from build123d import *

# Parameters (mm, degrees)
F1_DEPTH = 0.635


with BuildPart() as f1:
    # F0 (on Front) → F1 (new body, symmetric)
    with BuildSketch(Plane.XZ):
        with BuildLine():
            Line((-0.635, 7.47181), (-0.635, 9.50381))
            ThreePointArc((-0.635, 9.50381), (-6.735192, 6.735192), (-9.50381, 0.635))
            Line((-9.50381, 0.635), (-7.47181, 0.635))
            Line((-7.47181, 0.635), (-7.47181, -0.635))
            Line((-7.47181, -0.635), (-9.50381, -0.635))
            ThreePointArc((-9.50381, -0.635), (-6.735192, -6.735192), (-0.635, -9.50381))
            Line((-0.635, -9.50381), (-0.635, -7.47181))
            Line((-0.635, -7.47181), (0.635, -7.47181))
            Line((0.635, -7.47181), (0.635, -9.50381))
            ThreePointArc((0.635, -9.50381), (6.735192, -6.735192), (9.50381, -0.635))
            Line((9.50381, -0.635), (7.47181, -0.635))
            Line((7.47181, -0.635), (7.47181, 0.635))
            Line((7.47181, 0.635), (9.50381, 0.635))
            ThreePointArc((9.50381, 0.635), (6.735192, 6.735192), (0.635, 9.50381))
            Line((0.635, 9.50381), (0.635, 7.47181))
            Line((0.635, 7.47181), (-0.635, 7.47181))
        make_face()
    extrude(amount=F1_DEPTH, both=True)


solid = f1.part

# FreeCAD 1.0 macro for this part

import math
import FreeCAD as App
import Part
import Sketcher
from FreeCAD import Vector
Q = App.Units.Quantity

doc = App.newDocument("Part")
params = doc.addObject("Spreadsheet::Sheet", "Params")
for row, (alias, value) in enumerate([
    ("sketch1_radius", "0.3750001 in"),
    ("sketch1_width", "0.08 in"),
    ("sketch1_width2", "0.05 in"),
    ("pad1_length", "0.05 in"),
], start=1):
    params.set(f"A{row}", alias)
    params.set(f"B{row}", "=" + value)
    params.setAlias(f"B{row}", alias)

body = doc.addObject("PartDesign::Body", "Body")

sketch1 = doc.addObject("Sketcher::SketchObject", "Sketch")
body.addObject(sketch1)
sketch1.AttachmentSupport = (doc.XZ_Plane, [""])
sketch1.MapMode = "FlatFace"
sketch1.addGeometry(Part.LineSegment(Vector(-0.6, 7.5, 0), Vector(-0.6, 9.5, 0)), False)
sketch1.addGeometry(Part.ArcOfCircle(Part.Circle(Vector(0, 0, 0), Vector(0, 0, 1), 9.5), math.radians(94), math.radians(176)), False)
sketch1.addGeometry(Part.LineSegment(Vector(-9.5, 0.6, 0), Vector(-7.5, 0.6, 0)), False)
sketch1.addGeometry(Part.LineSegment(Vector(-7.5, 0.6, 0), Vector(-7.5, -0.6, 0)), False)
sketch1.addGeometry(Part.LineSegment(Vector(-7.5, -0.6, 0), Vector(-9.5, -0.6, 0)), False)
sketch1.addGeometry(Part.ArcOfCircle(Part.Circle(Vector(0, 0, 0), Vector(0, 0, 1), 9.5), math.radians(-176), math.radians(-94)), False)
sketch1.addGeometry(Part.LineSegment(Vector(-0.6, -9.5, 0), Vector(-0.6, -7.5, 0)), False)
sketch1.addGeometry(Part.LineSegment(Vector(-0.6, -7.5, 0), Vector(0.6, -7.5, 0)), False)
sketch1.addGeometry(Part.LineSegment(Vector(0.6, -7.5, 0), Vector(0.6, -9.5, 0)), False)
sketch1.addGeometry(Part.ArcOfCircle(Part.Circle(Vector(0, 0, 0), Vector(0, 0, 1), 9.5), math.radians(-86), math.radians(-4)), False)
sketch1.addGeometry(Part.LineSegment(Vector(9.5, -0.6, 0), Vector(7.5, -0.6, 0)), False)
sketch1.addGeometry(Part.LineSegment(Vector(7.5, -0.6, 0), Vector(7.5, 0.6, 0)), False)
sketch1.addGeometry(Part.LineSegment(Vector(7.5, 0.6, 0), Vector(9.5, 0.6, 0)), False)
sketch1.addGeometry(Part.ArcOfCircle(Part.Circle(Vector(0, 0, 0), Vector(0, 0, 1), 9.5), math.radians(4), math.radians(86)), False)
sketch1.addGeometry(Part.LineSegment(Vector(0.6, 9.5, 0), Vector(0.6, 7.5, 0)), False)
sketch1.addGeometry(Part.LineSegment(Vector(0.6, 7.5, 0), Vector(-0.6, 7.5, 0)), False)
sketch1.addConstraint(Sketcher.Constraint("Coincident", 0, 2, 1, 1))
sketch1.addConstraint(Sketcher.Constraint("Coincident", 1, 2, 2, 1))
sketch1.addConstraint(Sketcher.Constraint("Coincident", 2, 2, 3, 1))
sketch1.addConstraint(Sketcher.Constraint("Coincident", 3, 2, 4, 1))
sketch1.addConstraint(Sketcher.Constraint("Coincident", 4, 2, 5, 1))
sketch1.addConstraint(Sketcher.Constraint("Coincident", 5, 2, 6, 1))
sketch1.addConstraint(Sketcher.Constraint("Coincident", 6, 2, 7, 1))
sketch1.addConstraint(Sketcher.Constraint("Coincident", 7, 2, 8, 1))
sketch1.addConstraint(Sketcher.Constraint("Coincident", 8, 2, 9, 1))
sketch1.addConstraint(Sketcher.Constraint("Coincident", 9, 2, 10, 1))
sketch1.addConstraint(Sketcher.Constraint("Coincident", 10, 2, 11, 1))
sketch1.addConstraint(Sketcher.Constraint("Coincident", 11, 2, 12, 1))
sketch1.addConstraint(Sketcher.Constraint("Coincident", 12, 2, 13, 1))
sketch1.addConstraint(Sketcher.Constraint("Coincident", 13, 2, 14, 1))
sketch1.addConstraint(Sketcher.Constraint("Coincident", 14, 2, 15, 1))
sketch1.addConstraint(Sketcher.Constraint("Coincident", 15, 2, 0, 1))
sketch1.addConstraint(Sketcher.Constraint("Vertical", 0))
sketch1.addConstraint(Sketcher.Constraint("Horizontal", 2))
sketch1.addConstraint(Sketcher.Constraint("Vertical", 3))
sketch1.addConstraint(Sketcher.Constraint("Horizontal", 4))
sketch1.addConstraint(Sketcher.Constraint("Vertical", 6))
sketch1.addConstraint(Sketcher.Constraint("Horizontal", 7))
sketch1.addConstraint(Sketcher.Constraint("Vertical", 8))
sketch1.addConstraint(Sketcher.Constraint("Horizontal", 10))
sketch1.addConstraint(Sketcher.Constraint("Vertical", 11))
sketch1.addConstraint(Sketcher.Constraint("Horizontal", 12))
sketch1.addConstraint(Sketcher.Constraint("Vertical", 14))
sketch1.addConstraint(Sketcher.Constraint("Horizontal", 15))
sketch1.addConstraint(Sketcher.Constraint("Coincident", 1, 3, -1, 1))
sketch1.addConstraint(Sketcher.Constraint("Coincident", 5, 3, -1, 1))
sketch1.addConstraint(Sketcher.Constraint("Coincident", 9, 3, -1, 1))
sketch1.addConstraint(Sketcher.Constraint("Coincident", 13, 3, -1, 1))
sketch1.addConstraint(Sketcher.Constraint("Equal", 1, 5))
sketch1.addConstraint(Sketcher.Constraint("Equal", 5, 9))
sketch1.addConstraint(Sketcher.Constraint("Equal", 9, 13))
sketch1.addConstraint(Sketcher.Constraint("Symmetric", 2, 2, 10, 2, -1, 1))
sketch1.addConstraint(Sketcher.Constraint("Symmetric", 6, 2, 14, 2, -1, 1))
sketch1.addConstraint(Sketcher.Constraint("Horizontal", 5, 2, 8, 2))
sketch1.addConstraint(Sketcher.Constraint("Horizontal", 4, 2, 9, 2))
sketch1.addConstraint(Sketcher.Constraint("Horizontal", 2, 2, 11, 2))
sketch1.addConstraint(Sketcher.Constraint("Horizontal", 0, 2, 13, 2))
sketch1.addConstraint(Sketcher.Constraint("Equal", 12, 0))
sketch1.addConstraint(Sketcher.Constraint("Equal", 15, 3))
sketch1.addConstraint(Sketcher.Constraint("Radius", 1, Q("0.3750001 in")))
sketch1.addConstraint(Sketcher.Constraint("DistanceX", 2, 1, 2, 2, Q("0.08 in")))
sketch1.addConstraint(Sketcher.Constraint("DistanceX", 7, 1, 7, 2, Q("0.05 in")))
sketch1.setExpression("Constraints[43]", "Params.sketch1_radius")
sketch1.setExpression("Constraints[44]", "Params.sketch1_width")
sketch1.setExpression("Constraints[45]", "Params.sketch1_width2")
pad1 = doc.addObject("PartDesign::Pad", "Pad")
body.addObject(pad1)
pad1.Profile = sketch1
pad1.setExpression("Length", "Params.pad1_length")
pad1.Midplane = True

doc.recompute()
